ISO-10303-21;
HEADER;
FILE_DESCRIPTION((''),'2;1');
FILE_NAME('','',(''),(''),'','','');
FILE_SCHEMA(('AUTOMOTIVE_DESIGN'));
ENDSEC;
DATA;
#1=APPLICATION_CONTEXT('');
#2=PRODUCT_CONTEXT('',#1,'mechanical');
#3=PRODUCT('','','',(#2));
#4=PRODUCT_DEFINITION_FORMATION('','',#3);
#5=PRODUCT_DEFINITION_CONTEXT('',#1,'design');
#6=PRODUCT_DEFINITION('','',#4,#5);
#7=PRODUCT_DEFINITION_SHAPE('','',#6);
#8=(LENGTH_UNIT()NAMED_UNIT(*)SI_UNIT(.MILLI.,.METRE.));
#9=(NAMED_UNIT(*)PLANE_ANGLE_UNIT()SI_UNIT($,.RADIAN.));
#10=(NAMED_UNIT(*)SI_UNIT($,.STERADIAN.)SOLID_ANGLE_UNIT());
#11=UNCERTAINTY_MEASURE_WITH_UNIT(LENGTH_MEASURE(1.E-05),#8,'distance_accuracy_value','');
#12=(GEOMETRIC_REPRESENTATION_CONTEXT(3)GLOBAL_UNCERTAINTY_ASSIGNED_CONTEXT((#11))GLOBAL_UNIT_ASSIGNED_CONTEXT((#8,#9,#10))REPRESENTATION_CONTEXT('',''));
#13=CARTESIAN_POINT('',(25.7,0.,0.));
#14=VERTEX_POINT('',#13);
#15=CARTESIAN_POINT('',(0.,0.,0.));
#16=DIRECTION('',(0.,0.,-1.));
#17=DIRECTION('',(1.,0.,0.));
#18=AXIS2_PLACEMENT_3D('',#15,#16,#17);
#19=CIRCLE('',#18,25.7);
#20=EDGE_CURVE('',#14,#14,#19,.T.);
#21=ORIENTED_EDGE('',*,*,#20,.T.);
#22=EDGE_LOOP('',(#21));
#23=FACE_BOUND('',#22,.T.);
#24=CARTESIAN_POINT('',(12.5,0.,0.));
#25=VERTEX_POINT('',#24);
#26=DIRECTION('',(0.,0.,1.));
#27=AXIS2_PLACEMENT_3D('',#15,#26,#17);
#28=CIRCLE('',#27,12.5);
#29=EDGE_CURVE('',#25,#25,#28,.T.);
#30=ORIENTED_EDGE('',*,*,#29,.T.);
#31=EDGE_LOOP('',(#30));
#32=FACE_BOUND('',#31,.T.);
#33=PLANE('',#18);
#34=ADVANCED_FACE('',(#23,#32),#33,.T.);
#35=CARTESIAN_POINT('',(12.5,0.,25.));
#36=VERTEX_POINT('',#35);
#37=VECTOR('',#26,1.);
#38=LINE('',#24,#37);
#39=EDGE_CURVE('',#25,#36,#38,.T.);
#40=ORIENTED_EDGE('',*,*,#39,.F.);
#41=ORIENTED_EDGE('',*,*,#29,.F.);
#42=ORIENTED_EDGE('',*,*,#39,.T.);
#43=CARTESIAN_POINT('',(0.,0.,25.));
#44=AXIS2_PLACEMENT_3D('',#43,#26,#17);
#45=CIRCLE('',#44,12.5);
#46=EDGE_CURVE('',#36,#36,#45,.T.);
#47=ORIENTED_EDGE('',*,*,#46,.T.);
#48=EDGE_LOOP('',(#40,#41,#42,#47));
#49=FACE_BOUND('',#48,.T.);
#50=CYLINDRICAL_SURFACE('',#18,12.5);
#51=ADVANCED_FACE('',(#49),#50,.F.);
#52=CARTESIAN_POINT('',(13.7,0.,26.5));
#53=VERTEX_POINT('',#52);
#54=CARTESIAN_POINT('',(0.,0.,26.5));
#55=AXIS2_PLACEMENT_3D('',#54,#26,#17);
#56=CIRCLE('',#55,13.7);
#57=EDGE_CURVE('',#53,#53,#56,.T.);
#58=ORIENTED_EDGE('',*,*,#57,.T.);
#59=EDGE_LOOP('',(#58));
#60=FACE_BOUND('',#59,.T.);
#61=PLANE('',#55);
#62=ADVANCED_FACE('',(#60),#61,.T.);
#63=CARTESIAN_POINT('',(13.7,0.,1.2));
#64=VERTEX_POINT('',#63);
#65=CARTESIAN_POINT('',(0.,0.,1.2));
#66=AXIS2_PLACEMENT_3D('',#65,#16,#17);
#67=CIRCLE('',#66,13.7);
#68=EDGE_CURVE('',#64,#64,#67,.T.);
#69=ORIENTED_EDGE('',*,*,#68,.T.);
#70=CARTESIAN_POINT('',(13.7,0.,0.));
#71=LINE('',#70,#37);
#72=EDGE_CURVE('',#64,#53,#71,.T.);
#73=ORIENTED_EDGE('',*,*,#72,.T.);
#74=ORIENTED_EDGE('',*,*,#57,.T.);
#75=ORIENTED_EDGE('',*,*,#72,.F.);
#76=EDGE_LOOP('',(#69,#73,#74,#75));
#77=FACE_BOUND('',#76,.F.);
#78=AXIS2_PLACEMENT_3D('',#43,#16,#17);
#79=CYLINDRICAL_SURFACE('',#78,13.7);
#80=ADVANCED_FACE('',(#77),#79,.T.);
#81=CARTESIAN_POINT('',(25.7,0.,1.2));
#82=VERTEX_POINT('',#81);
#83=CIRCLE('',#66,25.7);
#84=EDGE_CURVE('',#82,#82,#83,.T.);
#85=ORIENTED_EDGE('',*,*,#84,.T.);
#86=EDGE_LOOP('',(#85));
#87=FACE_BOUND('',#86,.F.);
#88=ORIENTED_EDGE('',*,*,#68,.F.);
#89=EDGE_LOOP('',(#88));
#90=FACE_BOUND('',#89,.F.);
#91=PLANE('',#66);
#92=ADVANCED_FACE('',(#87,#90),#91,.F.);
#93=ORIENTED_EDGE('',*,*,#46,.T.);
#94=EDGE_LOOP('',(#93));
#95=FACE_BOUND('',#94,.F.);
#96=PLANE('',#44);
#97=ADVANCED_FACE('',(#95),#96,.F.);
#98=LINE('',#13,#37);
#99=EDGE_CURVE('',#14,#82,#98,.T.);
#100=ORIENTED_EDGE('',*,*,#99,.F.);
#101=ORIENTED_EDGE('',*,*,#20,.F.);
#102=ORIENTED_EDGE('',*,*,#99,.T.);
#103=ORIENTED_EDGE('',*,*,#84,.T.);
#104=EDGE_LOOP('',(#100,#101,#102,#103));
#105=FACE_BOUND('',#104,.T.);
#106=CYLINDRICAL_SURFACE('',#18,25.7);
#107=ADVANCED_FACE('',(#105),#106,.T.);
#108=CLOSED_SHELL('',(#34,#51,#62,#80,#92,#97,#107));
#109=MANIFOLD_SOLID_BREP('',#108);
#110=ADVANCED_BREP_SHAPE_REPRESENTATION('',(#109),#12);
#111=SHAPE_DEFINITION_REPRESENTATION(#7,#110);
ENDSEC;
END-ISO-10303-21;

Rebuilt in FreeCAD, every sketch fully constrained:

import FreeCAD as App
import Part
import Sketcher

V = App.Vector

doc = App.newDocument("Part")
params = doc.addObject("Spreadsheet::Sheet", "Params")
for row, (alias, value) in enumerate([
    ("sketch1_diameter", "25 mm"),
    ("sketch1_diameter2", "27.4 mm"),
    ("pad1_length", "25 mm"),
    ("sketch2_diameter", "27.4 mm"),
    ("pad2_length", "1.5 mm"),
    ("sketch3_diameter", "51.4 mm"),
    ("sketch3_diameter2", "27.4 mm"),
    ("pad3_length", "1.2 mm"),
], start=1):
    params.set(f"A{row}", alias)
    params.set(f"B{row}", "=" + value)
    params.setAlias(f"B{row}", alias)

body = doc.addObject("PartDesign::Body", "Body")

# Sketch on XY plane
sketch1 = body.newObject("Sketcher::SketchObject", "Sketch")
sketch1.AttachmentSupport = (doc.getObject("XY_Plane"), [""])
sketch1.MapMode = "FlatFace"
sketch1.addGeometry([
    Part.Circle(V(0, 0, 0), V(0, 0, 1), 13.7),
    Part.Circle(V(0, 0, 0), V(0, 0, 1), 12.5),
], False)
sketch1.addConstraint([
    Sketcher.Constraint("Coincident", 0, 3, -1, 1),
    Sketcher.Constraint("Coincident", 1, 3, -1, 1),
    Sketcher.Constraint("Diameter", 1, 25.0),
    Sketcher.Constraint("Diameter", 0, 27.4),
])
sketch1.setExpression("Constraints[2]", "Params.sketch1_diameter")
sketch1.setExpression("Constraints[3]", "Params.sketch1_diameter2")
pad1 = body.newObject("PartDesign::Pad", "Pad")
pad1.Profile = sketch1
pad1.setExpression("Length", "Params.pad1_length")

# Sketch on XY plane
sketch2 = body.newObject("Sketcher::SketchObject", "Sketch001")
sketch2.AttachmentSupport = (doc.getObject("XY_Plane"), [""])
sketch2.MapMode = "FlatFace"
sketch2.AttachmentOffset = App.Placement(V(0, 0, 25), App.Rotation())
sketch2.addGeometry(Part.Circle(V(0, 0, 0), V(0, 0, 1), 13.7), False)
sketch2.addConstraint([
    Sketcher.Constraint("Coincident", 0, 3, -1, 1),
    Sketcher.Constraint("Diameter", 0, 27.4),
])
sketch2.setExpression("Constraints[1]", "Params.sketch2_diameter")
pad2 = body.newObject("PartDesign::Pad", "Pad001")
pad2.Profile = sketch2
pad2.setExpression("Length", "Params.pad2_length")

# Sketch on XY plane
sketch3 = body.newObject("Sketcher::SketchObject", "Sketch002")
sketch3.AttachmentSupport = (doc.getObject("XY_Plane"), [""])
sketch3.MapMode = "FlatFace"
sketch3.addGeometry([
    Part.Circle(V(0, 0, 0), V(0, 0, 1), 25.7),
    Part.Circle(V(0, 0, 0), V(0, 0, 1), 13.7),
], False)
sketch3.addConstraint([
    Sketcher.Constraint("Coincident", 0, 3, -1, 1),
    Sketcher.Constraint("Coincident", 1, 3, -1, 1),
    Sketcher.Constraint("Diameter", 0, 51.4),
    Sketcher.Constraint("Diameter", 1, 27.4),
])
sketch3.setExpression("Constraints[2]", "Params.sketch3_diameter")
sketch3.setExpression("Constraints[3]", "Params.sketch3_diameter2")
pad3 = body.newObject("PartDesign::Pad", "Pad002")
pad3.Profile = sketch3
pad3.setExpression("Length", "Params.pad3_length")

doc.recompute()
